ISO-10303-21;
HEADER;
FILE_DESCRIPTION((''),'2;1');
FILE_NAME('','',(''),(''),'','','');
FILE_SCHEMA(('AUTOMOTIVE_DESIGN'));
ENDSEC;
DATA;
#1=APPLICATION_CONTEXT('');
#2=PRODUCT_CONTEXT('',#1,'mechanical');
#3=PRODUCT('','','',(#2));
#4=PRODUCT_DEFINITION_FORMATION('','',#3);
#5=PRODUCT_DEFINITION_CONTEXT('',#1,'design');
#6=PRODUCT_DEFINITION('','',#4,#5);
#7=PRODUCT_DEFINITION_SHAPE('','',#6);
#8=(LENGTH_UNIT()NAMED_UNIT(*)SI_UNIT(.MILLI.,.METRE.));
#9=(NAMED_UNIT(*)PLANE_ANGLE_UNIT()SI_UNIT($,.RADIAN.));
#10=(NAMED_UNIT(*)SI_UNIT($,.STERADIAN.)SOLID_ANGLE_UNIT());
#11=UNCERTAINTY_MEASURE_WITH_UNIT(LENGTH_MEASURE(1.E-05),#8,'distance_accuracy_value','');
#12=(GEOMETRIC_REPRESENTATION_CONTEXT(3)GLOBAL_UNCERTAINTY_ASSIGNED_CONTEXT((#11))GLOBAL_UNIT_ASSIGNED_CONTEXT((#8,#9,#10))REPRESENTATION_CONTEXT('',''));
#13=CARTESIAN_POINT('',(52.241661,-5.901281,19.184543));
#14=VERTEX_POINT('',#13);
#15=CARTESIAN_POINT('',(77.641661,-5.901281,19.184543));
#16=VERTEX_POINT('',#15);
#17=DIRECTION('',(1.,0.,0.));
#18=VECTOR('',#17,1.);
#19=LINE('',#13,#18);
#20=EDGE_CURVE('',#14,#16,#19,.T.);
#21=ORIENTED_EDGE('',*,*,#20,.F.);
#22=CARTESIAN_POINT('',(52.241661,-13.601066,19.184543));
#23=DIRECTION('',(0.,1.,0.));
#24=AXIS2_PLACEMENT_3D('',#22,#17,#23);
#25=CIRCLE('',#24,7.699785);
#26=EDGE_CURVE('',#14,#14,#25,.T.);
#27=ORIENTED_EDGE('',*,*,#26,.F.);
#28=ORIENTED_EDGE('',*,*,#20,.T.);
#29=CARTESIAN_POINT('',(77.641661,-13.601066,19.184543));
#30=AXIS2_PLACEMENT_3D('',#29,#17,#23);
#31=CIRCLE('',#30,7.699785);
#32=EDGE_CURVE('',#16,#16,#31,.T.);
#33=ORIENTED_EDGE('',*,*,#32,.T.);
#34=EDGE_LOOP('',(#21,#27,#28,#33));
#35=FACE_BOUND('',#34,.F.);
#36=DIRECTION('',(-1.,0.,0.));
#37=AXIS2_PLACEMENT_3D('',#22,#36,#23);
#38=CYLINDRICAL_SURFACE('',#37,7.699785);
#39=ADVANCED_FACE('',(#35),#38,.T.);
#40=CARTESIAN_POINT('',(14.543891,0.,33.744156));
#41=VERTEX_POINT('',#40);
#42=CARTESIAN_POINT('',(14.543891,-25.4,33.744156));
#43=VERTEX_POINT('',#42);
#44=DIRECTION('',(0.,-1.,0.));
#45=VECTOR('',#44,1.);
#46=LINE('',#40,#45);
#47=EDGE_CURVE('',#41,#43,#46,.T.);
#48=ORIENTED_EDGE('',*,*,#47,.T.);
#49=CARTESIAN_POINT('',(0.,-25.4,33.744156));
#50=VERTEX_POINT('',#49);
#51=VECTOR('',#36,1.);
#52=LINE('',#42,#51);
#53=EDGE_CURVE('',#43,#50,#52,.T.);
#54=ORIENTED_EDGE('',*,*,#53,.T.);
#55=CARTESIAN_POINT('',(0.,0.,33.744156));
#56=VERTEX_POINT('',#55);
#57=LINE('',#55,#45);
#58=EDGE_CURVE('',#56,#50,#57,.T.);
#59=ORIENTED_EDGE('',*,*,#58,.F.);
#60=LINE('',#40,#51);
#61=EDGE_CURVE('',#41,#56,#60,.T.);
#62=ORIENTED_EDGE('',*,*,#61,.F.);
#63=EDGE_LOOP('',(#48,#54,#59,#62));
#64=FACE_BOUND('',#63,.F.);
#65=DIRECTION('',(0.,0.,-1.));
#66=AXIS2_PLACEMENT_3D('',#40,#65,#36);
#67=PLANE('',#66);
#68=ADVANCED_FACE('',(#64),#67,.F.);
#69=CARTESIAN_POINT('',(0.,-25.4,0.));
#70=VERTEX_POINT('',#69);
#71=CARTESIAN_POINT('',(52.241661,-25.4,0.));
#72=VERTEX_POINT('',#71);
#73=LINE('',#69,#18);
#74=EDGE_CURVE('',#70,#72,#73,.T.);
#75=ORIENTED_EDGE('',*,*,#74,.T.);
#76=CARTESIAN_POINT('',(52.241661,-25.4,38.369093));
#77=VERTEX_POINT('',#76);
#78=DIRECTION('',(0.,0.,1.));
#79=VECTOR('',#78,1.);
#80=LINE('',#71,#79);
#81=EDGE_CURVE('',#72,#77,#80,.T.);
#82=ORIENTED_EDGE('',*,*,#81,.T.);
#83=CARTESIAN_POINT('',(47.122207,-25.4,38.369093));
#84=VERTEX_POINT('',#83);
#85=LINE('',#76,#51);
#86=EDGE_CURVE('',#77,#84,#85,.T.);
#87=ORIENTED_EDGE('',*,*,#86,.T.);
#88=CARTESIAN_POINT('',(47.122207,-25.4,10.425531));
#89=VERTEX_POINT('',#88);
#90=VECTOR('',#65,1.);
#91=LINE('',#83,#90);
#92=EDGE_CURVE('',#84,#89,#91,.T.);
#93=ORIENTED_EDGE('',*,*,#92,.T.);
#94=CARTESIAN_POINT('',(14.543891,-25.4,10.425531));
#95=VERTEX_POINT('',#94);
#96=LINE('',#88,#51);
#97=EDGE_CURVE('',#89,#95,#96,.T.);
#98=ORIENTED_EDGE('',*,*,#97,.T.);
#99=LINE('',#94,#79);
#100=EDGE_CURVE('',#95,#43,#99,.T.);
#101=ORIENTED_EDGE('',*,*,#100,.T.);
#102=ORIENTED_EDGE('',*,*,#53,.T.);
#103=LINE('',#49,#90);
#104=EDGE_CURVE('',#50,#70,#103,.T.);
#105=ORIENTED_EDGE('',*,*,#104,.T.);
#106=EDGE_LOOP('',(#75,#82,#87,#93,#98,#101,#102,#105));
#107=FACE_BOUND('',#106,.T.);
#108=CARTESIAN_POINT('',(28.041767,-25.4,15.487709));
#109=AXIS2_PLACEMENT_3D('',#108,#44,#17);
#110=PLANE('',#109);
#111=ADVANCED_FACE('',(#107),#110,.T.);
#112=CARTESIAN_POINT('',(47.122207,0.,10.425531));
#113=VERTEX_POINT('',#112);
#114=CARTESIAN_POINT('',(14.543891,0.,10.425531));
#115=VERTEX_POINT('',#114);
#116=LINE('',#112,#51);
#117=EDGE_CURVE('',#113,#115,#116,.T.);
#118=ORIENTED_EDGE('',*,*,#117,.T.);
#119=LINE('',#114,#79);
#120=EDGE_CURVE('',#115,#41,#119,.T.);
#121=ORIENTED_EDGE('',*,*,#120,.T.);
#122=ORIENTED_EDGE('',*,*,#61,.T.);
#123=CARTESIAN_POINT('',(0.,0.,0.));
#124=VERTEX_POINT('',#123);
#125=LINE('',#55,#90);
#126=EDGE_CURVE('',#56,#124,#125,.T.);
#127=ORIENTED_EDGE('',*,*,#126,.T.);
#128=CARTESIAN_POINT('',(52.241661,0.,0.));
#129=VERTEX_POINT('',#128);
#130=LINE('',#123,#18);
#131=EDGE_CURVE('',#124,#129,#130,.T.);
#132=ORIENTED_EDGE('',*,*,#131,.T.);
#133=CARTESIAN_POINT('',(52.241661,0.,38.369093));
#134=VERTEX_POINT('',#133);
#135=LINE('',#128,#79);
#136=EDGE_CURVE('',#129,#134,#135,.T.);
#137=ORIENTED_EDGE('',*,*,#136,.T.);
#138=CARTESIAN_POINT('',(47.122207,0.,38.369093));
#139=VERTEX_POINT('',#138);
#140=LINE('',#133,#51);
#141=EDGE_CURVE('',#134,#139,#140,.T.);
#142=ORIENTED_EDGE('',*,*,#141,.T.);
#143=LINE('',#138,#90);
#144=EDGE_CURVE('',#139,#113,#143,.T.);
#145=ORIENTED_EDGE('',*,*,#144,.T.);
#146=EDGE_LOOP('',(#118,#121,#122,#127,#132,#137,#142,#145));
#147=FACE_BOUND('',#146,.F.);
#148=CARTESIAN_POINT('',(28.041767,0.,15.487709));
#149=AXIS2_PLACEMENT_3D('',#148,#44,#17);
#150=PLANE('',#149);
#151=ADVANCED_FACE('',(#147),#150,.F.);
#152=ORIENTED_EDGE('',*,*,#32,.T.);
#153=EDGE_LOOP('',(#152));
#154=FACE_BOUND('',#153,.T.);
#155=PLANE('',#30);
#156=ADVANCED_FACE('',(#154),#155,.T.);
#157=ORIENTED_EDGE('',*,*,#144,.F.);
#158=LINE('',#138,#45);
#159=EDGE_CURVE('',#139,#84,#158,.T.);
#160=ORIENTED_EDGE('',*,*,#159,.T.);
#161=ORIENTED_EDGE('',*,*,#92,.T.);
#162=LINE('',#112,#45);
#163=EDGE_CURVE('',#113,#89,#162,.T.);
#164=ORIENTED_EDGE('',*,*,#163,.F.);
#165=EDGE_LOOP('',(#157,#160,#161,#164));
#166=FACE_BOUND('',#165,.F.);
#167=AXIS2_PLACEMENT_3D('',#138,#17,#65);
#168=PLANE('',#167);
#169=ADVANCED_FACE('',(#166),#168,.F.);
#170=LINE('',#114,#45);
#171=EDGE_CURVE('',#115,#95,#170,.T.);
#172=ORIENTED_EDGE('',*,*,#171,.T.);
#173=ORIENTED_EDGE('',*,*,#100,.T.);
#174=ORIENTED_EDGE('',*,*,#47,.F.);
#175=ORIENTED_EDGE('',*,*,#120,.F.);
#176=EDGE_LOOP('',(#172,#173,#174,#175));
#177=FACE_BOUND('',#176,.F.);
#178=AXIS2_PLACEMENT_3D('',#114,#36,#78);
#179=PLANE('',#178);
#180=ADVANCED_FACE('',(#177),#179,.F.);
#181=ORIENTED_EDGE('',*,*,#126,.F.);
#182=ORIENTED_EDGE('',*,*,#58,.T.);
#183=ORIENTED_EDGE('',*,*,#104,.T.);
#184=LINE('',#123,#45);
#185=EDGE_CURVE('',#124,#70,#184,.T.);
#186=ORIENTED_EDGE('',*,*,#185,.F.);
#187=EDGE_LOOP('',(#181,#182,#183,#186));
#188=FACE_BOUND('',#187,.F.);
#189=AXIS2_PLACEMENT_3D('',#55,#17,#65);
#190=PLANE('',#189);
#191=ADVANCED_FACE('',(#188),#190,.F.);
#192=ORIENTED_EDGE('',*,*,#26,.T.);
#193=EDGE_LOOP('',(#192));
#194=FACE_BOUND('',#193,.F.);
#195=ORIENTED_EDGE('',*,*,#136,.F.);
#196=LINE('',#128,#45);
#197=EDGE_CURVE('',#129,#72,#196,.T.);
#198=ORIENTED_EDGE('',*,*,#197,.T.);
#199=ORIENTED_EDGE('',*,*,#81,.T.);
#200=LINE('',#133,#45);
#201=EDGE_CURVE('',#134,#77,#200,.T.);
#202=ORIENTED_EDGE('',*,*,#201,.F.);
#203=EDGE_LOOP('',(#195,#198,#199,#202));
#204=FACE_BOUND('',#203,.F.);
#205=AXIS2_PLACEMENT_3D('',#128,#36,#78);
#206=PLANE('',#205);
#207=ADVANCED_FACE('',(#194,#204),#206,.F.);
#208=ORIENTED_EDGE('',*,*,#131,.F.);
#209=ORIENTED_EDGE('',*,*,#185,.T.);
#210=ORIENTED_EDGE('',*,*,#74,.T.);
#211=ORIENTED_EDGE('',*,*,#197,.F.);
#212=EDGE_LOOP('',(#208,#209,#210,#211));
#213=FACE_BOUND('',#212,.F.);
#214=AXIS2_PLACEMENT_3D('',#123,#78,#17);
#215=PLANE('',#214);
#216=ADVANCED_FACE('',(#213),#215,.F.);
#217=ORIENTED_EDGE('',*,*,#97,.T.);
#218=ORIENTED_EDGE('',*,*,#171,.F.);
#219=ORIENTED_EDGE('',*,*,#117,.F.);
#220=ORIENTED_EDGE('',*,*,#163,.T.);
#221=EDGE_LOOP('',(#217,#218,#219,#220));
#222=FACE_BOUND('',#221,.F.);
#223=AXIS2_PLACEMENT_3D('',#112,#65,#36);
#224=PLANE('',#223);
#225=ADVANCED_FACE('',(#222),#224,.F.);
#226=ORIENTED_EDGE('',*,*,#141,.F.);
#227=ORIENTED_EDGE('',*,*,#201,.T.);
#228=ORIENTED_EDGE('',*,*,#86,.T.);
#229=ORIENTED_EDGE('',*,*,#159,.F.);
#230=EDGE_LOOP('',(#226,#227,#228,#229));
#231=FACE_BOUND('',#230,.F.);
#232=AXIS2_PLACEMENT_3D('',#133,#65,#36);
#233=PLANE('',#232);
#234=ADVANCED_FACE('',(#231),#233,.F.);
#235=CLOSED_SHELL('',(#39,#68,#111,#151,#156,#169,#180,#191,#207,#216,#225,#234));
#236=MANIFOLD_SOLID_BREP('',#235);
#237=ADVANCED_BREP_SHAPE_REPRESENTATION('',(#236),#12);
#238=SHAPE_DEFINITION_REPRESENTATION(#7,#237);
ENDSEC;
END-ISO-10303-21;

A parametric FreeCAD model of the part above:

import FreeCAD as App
import Part
import Sketcher
from FreeCAD import Vector
Q = App.Units.Quantity

doc = App.newDocument("Part")
body = doc.addObject("PartDesign::Body", "Body")

# Sketch on XZ plane
sketch1 = doc.addObject("Sketcher::SketchObject", "Sketch")
body.addObject(sketch1)
sketch1.AttachmentSupport = (doc.XZ_Plane, [""])
sketch1.MapMode = "FlatFace"
sketch1.addGeometry([
    Part.LineSegment(Vector(0, 34, 0), Vector(0, 0, 0)),  # 0
    Part.LineSegment(Vector(0, 0, 0), Vector(52, 0, 0)),  # 1
    Part.LineSegment(Vector(52, 0, 0), Vector(52, 38, 0)),  # 2
    Part.LineSegment(Vector(52, 38, 0), Vector(47, 38, 0)),  # 3
    Part.LineSegment(Vector(47, 38, 0), Vector(47, 10, 0)),  # 4
    Part.LineSegment(Vector(47, 10, 0), Vector(15, 10, 0)),  # 5
    Part.LineSegment(Vector(15, 10, 0), Vector(15, 34, 0)),  # 6
    Part.LineSegment(Vector(15, 34, 0), Vector(0, 34, 0)),  # 7
], False)
sketch1.addConstraint([
    Sketcher.Constraint("Coincident", 0, 2, 1, 1),
    Sketcher.Constraint("Coincident", 1, 2, 2, 1),
    Sketcher.Constraint("Coincident", 2, 2, 3, 1),
    Sketcher.Constraint("Coincident", 3, 2, 4, 1),
    Sketcher.Constraint("Coincident", 4, 2, 5, 1),
    Sketcher.Constraint("Coincident", 5, 2, 6, 1),
    Sketcher.Constraint("Coincident", 6, 2, 7, 1),
    Sketcher.Constraint("Coincident", 7, 2, 0, 1),
    Sketcher.Constraint("Vertical", 0),
    Sketcher.Constraint("Horizontal", 1),
    Sketcher.Constraint("Vertical", 2),
    Sketcher.Constraint("Horizontal", 3),
    Sketcher.Constraint("Vertical", 4),
    Sketcher.Constraint("Horizontal", 5),
    Sketcher.Constraint("Vertical", 6),
    Sketcher.Constraint("Horizontal", 7),
    Sketcher.Constraint("Coincident", 0, 2, -1, 1),
    Sketcher.Constraint("DistanceX", 1, 1, 1, 2, Q("52.241661 mm")),
    Sketcher.Constraint("DistanceX", 7, 2, 7, 1, Q("14.543891 mm")),
    Sketcher.Constraint("DistanceY", 4, 2, 4, 1, Q("27.943562 mm")),
    Sketcher.Constraint("DistanceX", 3, 2, 3, 1, Q("5.119454 mm")),
    Sketcher.Constraint("DistanceY", 0, 2, 0, 1, Q("33.744156 mm")),
    Sketcher.Constraint("DistanceY", 2, 1, 2, 2, Q("38.369093 mm")),
])
pad1 = doc.addObject("PartDesign::Pad", "Pad")
body.addObject(pad1)
pad1.Profile = sketch1
pad1.Length = Q("1 in")

# Sketch on YZ plane
sketch2 = doc.addObject("Sketcher::SketchObject", "Sketch001")
body.addObject(sketch2)
sketch2.AttachmentSupport = (doc.YZ_Plane, [""])
sketch2.MapMode = "FlatFace"
sketch2.AttachmentOffset = App.Placement(Vector(0, 0, 52.241661), App.Rotation())
sketch2.addGeometry(Part.Circle(Vector(-14, 19, 0), Vector(0, 0, 1), 8), False)
sketch2.addConstraint([
    Sketcher.Constraint("Diameter", 0, Q("15.39957 mm")),
    Sketcher.Constraint("DistanceX", 0, 3, -1, 1, Q("13.601066 mm")),
    Sketcher.Constraint("DistanceY", -1, 1, 0, 3, Q("19.184543 mm")),
])
pad2 = doc.addObject("PartDesign::Pad", "Pad001")
body.addObject(pad2)
pad2.Profile = sketch2
pad2.Length = Q("1 in")

doc.recompute()
